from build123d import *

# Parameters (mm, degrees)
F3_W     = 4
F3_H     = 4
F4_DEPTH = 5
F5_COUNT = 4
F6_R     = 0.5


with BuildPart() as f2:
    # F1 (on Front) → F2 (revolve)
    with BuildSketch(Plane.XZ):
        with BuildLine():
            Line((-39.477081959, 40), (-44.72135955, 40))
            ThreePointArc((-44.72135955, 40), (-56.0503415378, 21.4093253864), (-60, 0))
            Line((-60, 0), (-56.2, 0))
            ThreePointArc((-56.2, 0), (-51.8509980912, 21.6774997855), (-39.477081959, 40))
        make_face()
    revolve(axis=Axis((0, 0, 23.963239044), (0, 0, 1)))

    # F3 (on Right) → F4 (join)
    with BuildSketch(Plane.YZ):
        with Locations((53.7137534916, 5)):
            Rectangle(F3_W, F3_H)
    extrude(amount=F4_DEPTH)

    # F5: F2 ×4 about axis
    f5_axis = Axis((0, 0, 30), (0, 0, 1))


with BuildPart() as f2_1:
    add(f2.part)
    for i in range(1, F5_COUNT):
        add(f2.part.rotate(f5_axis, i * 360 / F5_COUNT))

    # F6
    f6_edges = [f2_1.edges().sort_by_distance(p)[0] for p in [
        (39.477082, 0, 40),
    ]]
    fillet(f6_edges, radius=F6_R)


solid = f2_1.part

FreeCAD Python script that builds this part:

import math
import FreeCAD as App
import Part
import Sketcher


def edges_at(feature, points):
    """Names of the edges that pass closest to the given points."""
    edges = feature.Shape.Edges
    near = lambda p: min(range(len(edges)), key=lambda i: edges[i].distToShape(Part.Vertex(*p))[0])
    return sorted({f"Edge{near(p) + 1}" for p in points})


def add_polygon(sketch, points):
    """Adds a closed chain of lines whose ends are joined by coincident constraints."""
    first, n = sketch.GeometryCount, len(points)
    for a, b in zip(points, points[1:] + points[:1]):
        sketch.addGeometry(Part.LineSegment(App.Vector(*a, 0), App.Vector(*b, 0)), False)
    for i in range(n):
        sketch.addConstraint(Sketcher.Constraint("Coincident", first + i, 2, first + (i + 1) % n, 1))

doc = App.newDocument("Part")
params = doc.addObject("Spreadsheet::Sheet", "Params")
for row, (alias, value) in enumerate([
    ("sketch1_radius", "60 mm"),
    ("sketch1_radius2", "56.2 mm"),
    ("revolution_angle", "360 deg"),
    ("sketch2_width", "4 mm"),
    ("pad1_length", "5 mm"),
    ("fillet_radius", "0.5 mm"),
], start=1):
    params.set(f"A{row}", alias)
    params.set(f"B{row}", "=" + value)
    params.setAlias(f"B{row}", alias)

body = doc.addObject("PartDesign::Body", "Body")

sketch1 = doc.addObject("Sketcher::SketchObject", "Sketch")
body.addObject(sketch1)
sketch1.AttachmentSupport = (doc.XZ_Plane, [""])
sketch1.MapMode = "FlatFace"
sketch1.addGeometry([
    Part.LineSegment(App.Vector(-39.5, 40, 0), App.Vector(-44.7, 40, 0)),
    Part.ArcOfCircle(Part.Circle(App.Vector(0, 0, 0), App.Vector(0, 0, 1), 60), math.radians(138), math.radians(180)),
    Part.LineSegment(App.Vector(-60, 0, 0), App.Vector(-56.2, 0, 0)),
    Part.ArcOfCircle(Part.Circle(App.Vector(0, 0, 0), App.Vector(0, 0, 1), 56.2), math.radians(135), math.radians(180)),
], False)
sketch1.addConstraint([
    Sketcher.Constraint("Coincident", 0, 2, 1, 1),
    Sketcher.Constraint("Coincident", 1, 2, 2, 1),
    Sketcher.Constraint("Coincident", 2, 2, 3, 2),
    Sketcher.Constraint("Coincident", 3, 1, 0, 1),
    Sketcher.Constraint("Horizontal", 0),
    Sketcher.Constraint("Horizontal", 2),
    Sketcher.Constraint("Coincident", 1, 3, -1, 1),
    Sketcher.Constraint("Coincident", 3, 3, -1, 1),
    Sketcher.Constraint("PointOnObject", 1, 2, -1),
    Sketcher.Constraint("Radius", 1, 60.0),
    Sketcher.Constraint("Radius", 3, 56.2),
    Sketcher.Constraint("DistanceY", -1, 1, 0, 2, 40.0),
])
sketch1.setExpression("Constraints[9]", "Params.sketch1_radius")
sketch1.setExpression("Constraints[10]", "Params.sketch1_radius2")
revolution = doc.addObject("PartDesign::Revolution", "Revolution")
body.addObject(revolution)
revolution.Profile = sketch1
revolution.ReferenceAxis = (sketch1, ["V_Axis"])
revolution.setExpression("Angle", "Params.revolution_angle")

sketch2 = doc.addObject("Sketcher::SketchObject", "Sketch001")
body.addObject(sketch2)
sketch2.AttachmentSupport = (doc.YZ_Plane, [""])
sketch2.MapMode = "FlatFace"
add_polygon(sketch2, [(51.7, 7), (51.7, 3), (55.7, 3), (55.7, 7)])
sketch2.addConstraint([
    Sketcher.Constraint("Vertical", 0),
    Sketcher.Constraint("Horizontal", 1),
    Sketcher.Constraint("Vertical", 2),
    Sketcher.Constraint("Horizontal", 3),
    Sketcher.Constraint("Equal", 3, 0),
    Sketcher.Constraint("DistanceX", 1, 1, 1, 2, 4.0),
    Sketcher.Constraint("DistanceY", -1, 1, 0, 2, 3.0),
    Sketcher.Constraint("DistanceX", -1, 1, 0, 2, 51.713753),
])
sketch2.setExpression("Constraints[9]", "Params.sketch2_width")
pad1 = doc.addObject("PartDesign::Pad", "Pad")
body.addObject(pad1)
pad1.Profile = sketch2
pad1.setExpression("Length", "Params.pad1_length")
body2 = doc.addObject("PartDesign::Body", "Body001")
doc.recompute()

body2.BaseFeature = body
doc.recompute()

body3 = doc.addObject("PartDesign::Body", "Body002")
body3.BaseFeature = body
body3.Placement = App.Placement(App.Vector(0, 0, 0), App.Rotation(App.Vector(0, 0, 1), 90))
boolean = doc.addObject("PartDesign::Boolean", "Boolean")
body2.addObject(boolean)
boolean.Type = "Fuse"
boolean.addObjects([body3])
doc.recompute()

body4 = doc.addObject("PartDesign::Body", "Body003")
body4.BaseFeature = body
body4.Placement = App.Placement(App.Vector(0, 0, 0), App.Rotation(App.Vector(0, 0, 1), 180))
boolean2 = doc.addObject("PartDesign::Boolean", "Boolean001")
body2.addObject(boolean2)
boolean2.Type = "Fuse"
boolean2.addObjects([body4])
doc.recompute()

body.Placement = App.Placement(App.Vector(0, 0, 0), App.Rotation(App.Vector(0, 0, 1), 270))
boolean3 = doc.addObject("PartDesign::Boolean", "Boolean002")
body2.addObject(boolean3)
boolean3.Type = "Fuse"
boolean3.addObjects([body])
doc.recompute()

fillet = doc.addObject("PartDesign::Fillet", "Fillet")
body2.addObject(fillet)
fillet.Base = (boolean3, edges_at(boolean3, [(39.477, 0, 40)]))
fillet.setExpression("Radius", "Params.fillet_radius")

doc.recompute()
